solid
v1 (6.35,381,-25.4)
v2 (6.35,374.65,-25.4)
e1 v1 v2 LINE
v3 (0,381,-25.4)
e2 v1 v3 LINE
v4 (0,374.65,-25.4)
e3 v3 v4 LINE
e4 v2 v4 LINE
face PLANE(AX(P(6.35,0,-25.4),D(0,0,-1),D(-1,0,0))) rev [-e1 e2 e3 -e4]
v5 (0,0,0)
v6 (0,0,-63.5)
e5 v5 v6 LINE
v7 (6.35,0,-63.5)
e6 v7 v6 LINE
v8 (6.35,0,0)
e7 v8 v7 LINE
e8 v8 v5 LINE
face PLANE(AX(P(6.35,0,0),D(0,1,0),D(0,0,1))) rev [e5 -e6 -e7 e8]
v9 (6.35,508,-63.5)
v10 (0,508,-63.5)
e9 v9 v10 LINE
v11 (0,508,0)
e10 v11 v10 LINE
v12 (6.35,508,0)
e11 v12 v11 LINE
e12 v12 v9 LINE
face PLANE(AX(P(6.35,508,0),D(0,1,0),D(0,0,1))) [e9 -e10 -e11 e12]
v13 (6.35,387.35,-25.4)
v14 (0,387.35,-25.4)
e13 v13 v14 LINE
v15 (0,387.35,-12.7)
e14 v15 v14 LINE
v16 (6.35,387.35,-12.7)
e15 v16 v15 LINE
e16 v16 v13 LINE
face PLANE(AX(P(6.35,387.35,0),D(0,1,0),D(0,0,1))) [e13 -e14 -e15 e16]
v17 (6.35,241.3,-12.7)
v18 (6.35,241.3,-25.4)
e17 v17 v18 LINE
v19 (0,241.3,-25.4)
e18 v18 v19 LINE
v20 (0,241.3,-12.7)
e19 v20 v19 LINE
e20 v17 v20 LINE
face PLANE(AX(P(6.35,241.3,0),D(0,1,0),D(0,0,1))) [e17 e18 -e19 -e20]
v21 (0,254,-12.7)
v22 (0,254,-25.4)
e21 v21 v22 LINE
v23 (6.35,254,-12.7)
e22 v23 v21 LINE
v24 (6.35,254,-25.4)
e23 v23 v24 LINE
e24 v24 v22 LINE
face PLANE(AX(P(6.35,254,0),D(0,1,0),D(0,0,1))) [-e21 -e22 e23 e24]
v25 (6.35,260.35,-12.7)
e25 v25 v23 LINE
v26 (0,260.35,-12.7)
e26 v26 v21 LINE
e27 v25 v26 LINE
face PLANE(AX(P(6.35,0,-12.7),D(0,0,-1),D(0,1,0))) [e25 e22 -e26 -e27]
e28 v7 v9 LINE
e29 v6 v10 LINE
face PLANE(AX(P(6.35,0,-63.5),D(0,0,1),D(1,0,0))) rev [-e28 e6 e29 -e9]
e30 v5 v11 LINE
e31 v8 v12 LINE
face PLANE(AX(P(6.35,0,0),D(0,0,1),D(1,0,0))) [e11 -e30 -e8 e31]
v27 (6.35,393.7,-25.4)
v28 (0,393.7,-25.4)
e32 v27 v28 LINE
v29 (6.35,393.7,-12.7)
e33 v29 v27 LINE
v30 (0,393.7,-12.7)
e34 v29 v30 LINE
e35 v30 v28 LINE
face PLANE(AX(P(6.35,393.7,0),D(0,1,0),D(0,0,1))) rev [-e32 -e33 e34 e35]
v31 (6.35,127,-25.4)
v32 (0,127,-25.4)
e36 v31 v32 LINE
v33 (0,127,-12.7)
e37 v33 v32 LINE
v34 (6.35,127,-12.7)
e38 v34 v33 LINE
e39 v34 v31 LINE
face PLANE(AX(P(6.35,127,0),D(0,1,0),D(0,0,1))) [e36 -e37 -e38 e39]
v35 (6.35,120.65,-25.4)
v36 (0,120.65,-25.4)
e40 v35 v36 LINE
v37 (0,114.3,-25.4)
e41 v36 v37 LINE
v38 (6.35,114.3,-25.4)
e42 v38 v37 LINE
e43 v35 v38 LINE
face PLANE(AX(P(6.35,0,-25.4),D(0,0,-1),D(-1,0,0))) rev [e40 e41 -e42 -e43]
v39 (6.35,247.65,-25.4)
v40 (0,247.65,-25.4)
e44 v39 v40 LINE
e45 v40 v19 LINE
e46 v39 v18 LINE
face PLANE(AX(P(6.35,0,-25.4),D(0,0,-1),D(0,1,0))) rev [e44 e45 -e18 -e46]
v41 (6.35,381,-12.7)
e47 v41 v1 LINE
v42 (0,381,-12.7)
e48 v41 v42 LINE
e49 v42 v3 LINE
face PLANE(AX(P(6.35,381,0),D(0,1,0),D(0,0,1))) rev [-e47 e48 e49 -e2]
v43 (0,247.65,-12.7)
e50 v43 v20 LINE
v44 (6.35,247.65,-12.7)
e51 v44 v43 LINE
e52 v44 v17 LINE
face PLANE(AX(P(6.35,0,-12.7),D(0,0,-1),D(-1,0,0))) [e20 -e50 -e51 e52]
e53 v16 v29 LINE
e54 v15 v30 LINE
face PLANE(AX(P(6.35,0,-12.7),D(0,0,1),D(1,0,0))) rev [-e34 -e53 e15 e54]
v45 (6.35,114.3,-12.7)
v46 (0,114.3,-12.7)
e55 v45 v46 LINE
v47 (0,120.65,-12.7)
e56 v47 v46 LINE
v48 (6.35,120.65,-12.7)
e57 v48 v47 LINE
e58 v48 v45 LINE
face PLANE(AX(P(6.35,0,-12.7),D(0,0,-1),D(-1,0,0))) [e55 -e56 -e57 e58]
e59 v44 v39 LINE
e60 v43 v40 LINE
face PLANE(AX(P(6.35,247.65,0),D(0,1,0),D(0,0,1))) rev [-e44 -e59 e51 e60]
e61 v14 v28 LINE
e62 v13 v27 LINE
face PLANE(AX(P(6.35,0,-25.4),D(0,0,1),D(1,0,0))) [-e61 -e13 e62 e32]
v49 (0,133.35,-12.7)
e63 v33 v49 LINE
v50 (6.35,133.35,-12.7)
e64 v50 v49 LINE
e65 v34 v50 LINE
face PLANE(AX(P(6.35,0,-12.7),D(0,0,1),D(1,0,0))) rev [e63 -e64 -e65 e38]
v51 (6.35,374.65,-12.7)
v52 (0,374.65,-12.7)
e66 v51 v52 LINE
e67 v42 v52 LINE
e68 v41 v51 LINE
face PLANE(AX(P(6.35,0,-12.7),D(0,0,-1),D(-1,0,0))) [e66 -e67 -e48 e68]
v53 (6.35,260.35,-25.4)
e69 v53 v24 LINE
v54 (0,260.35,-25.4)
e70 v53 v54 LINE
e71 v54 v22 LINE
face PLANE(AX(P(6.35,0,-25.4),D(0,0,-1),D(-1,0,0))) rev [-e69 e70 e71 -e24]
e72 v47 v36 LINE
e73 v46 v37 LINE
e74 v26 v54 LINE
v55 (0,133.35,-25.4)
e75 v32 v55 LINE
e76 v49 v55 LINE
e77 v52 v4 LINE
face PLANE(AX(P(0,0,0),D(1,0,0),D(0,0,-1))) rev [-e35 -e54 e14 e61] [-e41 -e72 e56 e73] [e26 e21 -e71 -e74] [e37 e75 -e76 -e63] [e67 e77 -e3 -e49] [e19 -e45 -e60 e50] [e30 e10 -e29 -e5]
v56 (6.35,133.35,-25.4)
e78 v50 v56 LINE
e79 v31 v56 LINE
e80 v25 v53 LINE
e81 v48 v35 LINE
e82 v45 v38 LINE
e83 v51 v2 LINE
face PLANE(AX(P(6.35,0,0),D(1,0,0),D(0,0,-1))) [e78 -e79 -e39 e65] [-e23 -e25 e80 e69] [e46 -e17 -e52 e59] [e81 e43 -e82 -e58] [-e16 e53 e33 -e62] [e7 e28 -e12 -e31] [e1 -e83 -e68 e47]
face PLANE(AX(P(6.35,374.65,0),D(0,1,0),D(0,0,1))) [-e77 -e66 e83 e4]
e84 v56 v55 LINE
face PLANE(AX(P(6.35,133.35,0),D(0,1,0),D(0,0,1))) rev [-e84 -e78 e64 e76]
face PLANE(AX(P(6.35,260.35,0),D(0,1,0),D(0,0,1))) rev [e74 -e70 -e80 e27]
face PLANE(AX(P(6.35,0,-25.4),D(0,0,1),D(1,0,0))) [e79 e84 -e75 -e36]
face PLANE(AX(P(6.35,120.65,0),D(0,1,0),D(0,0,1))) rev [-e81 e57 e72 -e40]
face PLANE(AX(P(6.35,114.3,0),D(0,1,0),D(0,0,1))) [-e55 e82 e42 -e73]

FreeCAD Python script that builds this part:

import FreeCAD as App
import Part
import Sketcher
from FreeCAD import Vector
Q = App.Units.Quantity

doc = App.newDocument("Part")
params = doc.addObject("Spreadsheet::Sheet", "Params")
for row, (alias, value) in enumerate([
    ("sketch1_width", "20 in"),
    ("sketch1_height", "2.5 in"),
    ("sketch1_height2", "0.5 in"),
    ("sketch1_width2", "0.25 in"),
    ("pad1_length", "0.25 in"),
], start=1):
    params.set(f"A{row}", alias)
    params.set(f"B{row}", "=" + value)
    params.setAlias(f"B{row}", alias)

body = doc.addObject("PartDesign::Body", "Body")

# Sketch on YZ plane
sketch1 = body.newObject("Sketcher::SketchObject", "Sketch")
sketch1.AttachmentSupport = (doc.getObject("YZ_Plane"), [""])
sketch1.MapMode = "FlatFace"
sketch1.addGeometry(Part.LineSegment(Vector(508, 0, 0), Vector(0, 0, 0)), False)
sketch1.addGeometry(Part.LineSegment(Vector(0, 0, 0), Vector(0, -64, 0)), False)
sketch1.addGeometry(Part.LineSegment(Vector(0, -64, 0), Vector(508, -64, 0)), False)
sketch1.addGeometry(Part.LineSegment(Vector(508, -64, 0), Vector(508, 0, 0)), False)
sketch1.addGeometry(Part.LineSegment(Vector(114, -25, 0), Vector(114, -13, 0)), False)
sketch1.addGeometry(Part.LineSegment(Vector(114, -13, 0), Vector(121, -13, 0)), False)
sketch1.addGeometry(Part.LineSegment(Vector(121, -13, 0), Vector(121, -25, 0)), False)
sketch1.addGeometry(Part.LineSegment(Vector(121, -25, 0), Vector(114, -25, 0)), False)
sketch1.addGeometry(Part.LineSegment(Vector(127, -25, 0), Vector(127, -13, 0)), False)
sketch1.addGeometry(Part.LineSegment(Vector(127, -13, 0), Vector(133, -13, 0)), False)
sketch1.addGeometry(Part.LineSegment(Vector(133, -13, 0), Vector(133, -25, 0)), False)
sketch1.addGeometry(Part.LineSegment(Vector(133, -25, 0), Vector(127, -25, 0)), False)
sketch1.addGeometry(Part.LineSegment(Vector(241, -25, 0), Vector(241, -13, 0)), False)
sketch1.addGeometry(Part.LineSegment(Vector(241, -13, 0), Vector(248, -13, 0)), False)
sketch1.addGeometry(Part.LineSegment(Vector(248, -13, 0), Vector(248, -25, 0)), False)
sketch1.addGeometry(Part.LineSegment(Vector(248, -25, 0), Vector(241, -25, 0)), False)
sketch1.addGeometry(Part.LineSegment(Vector(254, -25, 0), Vector(254, -13, 0)), False)
sketch1.addGeometry(Part.LineSegment(Vector(254, -13, 0), Vector(260, -13, 0)), False)
sketch1.addGeometry(Part.LineSegment(Vector(260, -13, 0), Vector(260, -25, 0)), False)
sketch1.addGeometry(Part.LineSegment(Vector(260, -25, 0), Vector(254, -25, 0)), False)
sketch1.addGeometry(Part.LineSegment(Vector(375, -25, 0), Vector(375, -13, 0)), False)
sketch1.addGeometry(Part.LineSegment(Vector(375, -13, 0), Vector(381, -13, 0)), False)
sketch1.addGeometry(Part.LineSegment(Vector(381, -13, 0), Vector(381, -25, 0)), False)
sketch1.addGeometry(Part.LineSegment(Vector(381, -25, 0), Vector(375, -25, 0)), False)
sketch1.addGeometry(Part.LineSegment(Vector(387, -25, 0), Vector(387, -13, 0)), False)
sketch1.addGeometry(Part.LineSegment(Vector(387, -13, 0), Vector(394, -13, 0)), False)
sketch1.addGeometry(Part.LineSegment(Vector(394, -13, 0), Vector(394, -25, 0)), False)
sketch1.addGeometry(Part.LineSegment(Vector(394, -25, 0), Vector(387, -25, 0)), False)
sketch1.addConstraint(Sketcher.Constraint("Coincident", 0, 2, 1, 1))
sketch1.addConstraint(Sketcher.Constraint("Coincident", 1, 2, 2, 1))
sketch1.addConstraint(Sketcher.Constraint("Coincident", 2, 2, 3, 1))
sketch1.addConstraint(Sketcher.Constraint("Coincident", 3, 2, 0, 1))
sketch1.addConstraint(Sketcher.Constraint("Coincident", 4, 2, 5, 1))
sketch1.addConstraint(Sketcher.Constraint("Coincident", 5, 2, 6, 1))
sketch1.addConstraint(Sketcher.Constraint("Coincident", 6, 2, 7, 1))
sketch1.addConstraint(Sketcher.Constraint("Coincident", 7, 2, 4, 1))
sketch1.addConstraint(Sketcher.Constraint("Coincident", 8, 2, 9, 1))
sketch1.addConstraint(Sketcher.Constraint("Coincident", 9, 2, 10, 1))
sketch1.addConstraint(Sketcher.Constraint("Coincident", 10, 2, 11, 1))
sketch1.addConstraint(Sketcher.Constraint("Coincident", 11, 2, 8, 1))
sketch1.addConstraint(Sketcher.Constraint("Coincident", 12, 2, 13, 1))
sketch1.addConstraint(Sketcher.Constraint("Coincident", 13, 2, 14, 1))
sketch1.addConstraint(Sketcher.Constraint("Coincident", 14, 2, 15, 1))
sketch1.addConstraint(Sketcher.Constraint("Coincident", 15, 2, 12, 1))
sketch1.addConstraint(Sketcher.Constraint("Coincident", 16, 2, 17, 1))
sketch1.addConstraint(Sketcher.Constraint("Coincident", 17, 2, 18, 1))
sketch1.addConstraint(Sketcher.Constraint("Coincident", 18, 2, 19, 1))
sketch1.addConstraint(Sketcher.Constraint("Coincident", 19, 2, 16, 1))
sketch1.addConstraint(Sketcher.Constraint("Coincident", 20, 2, 21, 1))
sketch1.addConstraint(Sketcher.Constraint("Coincident", 21, 2, 22, 1))
sketch1.addConstraint(Sketcher.Constraint("Coincident", 22, 2, 23, 1))
sketch1.addConstraint(Sketcher.Constraint("Coincident", 23, 2, 20, 1))
sketch1.addConstraint(Sketcher.Constraint("Coincident", 24, 2, 25, 1))
sketch1.addConstraint(Sketcher.Constraint("Coincident", 25, 2, 26, 1))
sketch1.addConstraint(Sketcher.Constraint("Coincident", 26, 2, 27, 1))
sketch1.addConstraint(Sketcher.Constraint("Coincident", 27, 2, 24, 1))
sketch1.addConstraint(Sketcher.Constraint("Horizontal", 0))
sketch1.addConstraint(Sketcher.Constraint("Vertical", 1))
sketch1.addConstraint(Sketcher.Constraint("Horizontal", 2))
sketch1.addConstraint(Sketcher.Constraint("Vertical", 3))
sketch1.addConstraint(Sketcher.Constraint("Vertical", 4))
sketch1.addConstraint(Sketcher.Constraint("Horizontal", 5))
sketch1.addConstraint(Sketcher.Constraint("Vertical", 6))
sketch1.addConstraint(Sketcher.Constraint("Horizontal", 7))
sketch1.addConstraint(Sketcher.Constraint("Vertical", 8))
sketch1.addConstraint(Sketcher.Constraint("Horizontal", 9))
sketch1.addConstraint(Sketcher.Constraint("Vertical", 10))
sketch1.addConstraint(Sketcher.Constraint("Horizontal", 11))
sketch1.addConstraint(Sketcher.Constraint("Vertical", 12))
sketch1.addConstraint(Sketcher.Constraint("Horizontal", 13))
sketch1.addConstraint(Sketcher.Constraint("Vertical", 14))
sketch1.addConstraint(Sketcher.Constraint("Horizontal", 15))
sketch1.addConstraint(Sketcher.Constraint("Vertical", 16))
sketch1.addConstraint(Sketcher.Constraint("Horizontal", 17))
sketch1.addConstraint(Sketcher.Constraint("Vertical", 18))
sketch1.addConstraint(Sketcher.Constraint("Horizontal", 19))
sketch1.addConstraint(Sketcher.Constraint("Vertical", 20))
sketch1.addConstraint(Sketcher.Constraint("Horizontal", 21))
sketch1.addConstraint(Sketcher.Constraint("Vertical", 22))
sketch1.addConstraint(Sketcher.Constraint("Horizontal", 23))
sketch1.addConstraint(Sketcher.Constraint("Vertical", 24))
sketch1.addConstraint(Sketcher.Constraint("Horizontal", 25))
sketch1.addConstraint(Sketcher.Constraint("Vertical", 26))
sketch1.addConstraint(Sketcher.Constraint("Horizontal", 27))
sketch1.addConstraint(Sketcher.Constraint("Coincident", 0, 2, -1, 1))
sketch1.addConstraint(Sketcher.Constraint("Horizontal", 5, 2, 8, 2))
sketch1.addConstraint(Sketcher.Constraint("Horizontal", 7, 2, 10, 2))
sketch1.addConstraint(Sketcher.Constraint("Horizontal", 9, 2, 12, 2))
sketch1.addConstraint(Sketcher.Constraint("Horizontal", 11, 2, 14, 2))
sketch1.addConstraint(Sketcher.Constraint("Horizontal", 13, 2, 16, 2))
sketch1.addConstraint(Sketcher.Constraint("Horizontal", 15, 2, 18, 2))
sketch1.addConstraint(Sketcher.Constraint("Horizontal", 17, 2, 20, 2))
sketch1.addConstraint(Sketcher.Constraint("Horizontal", 19, 2, 22, 2))
sketch1.addConstraint(Sketcher.Constraint("Horizontal", 21, 2, 24, 2))
sketch1.addConstraint(Sketcher.Constraint("Horizontal", 23, 2, 26, 2))
sketch1.addConstraint(Sketcher.Constraint("Equal", 7, 9))
sketch1.addConstraint(Sketcher.Constraint("Equal", 11, 13))
sketch1.addConstraint(Sketcher.Constraint("Equal", 15, 17))
sketch1.addConstraint(Sketcher.Constraint("Equal", 19, 21))
sketch1.addConstraint(Sketcher.Constraint("Equal", 23, 25))
sketch1.addConstraint(Sketcher.Constraint("DistanceX", 0, 2, 0, 1, Q("20 in")))
sketch1.addConstraint(Sketcher.Constraint("DistanceY", 1, 2, 1, 1, Q("2.5 in")))
sketch1.addConstraint(Sketcher.Constraint("DistanceY", 4, 1, 4, 2, Q("0.5 in")))
sketch1.addConstraint(Sketcher.Constraint("DistanceY", 6, 2, -1, 1, Q("1 in")))
sketch1.addConstraint(Sketcher.Constraint("DistanceX", -1, 1, 8, 2, Q("5 in")))
sketch1.addConstraint(Sketcher.Constraint("DistanceX", -1, 1, 16, 2, Q("10 in")))
sketch1.addConstraint(Sketcher.Constraint("DistanceX", -1, 1, 21, 2, Q("15 in")))
sketch1.addConstraint(Sketcher.Constraint("DistanceX", 13, 2, 20, 2, Q("5 in")))
sketch1.addConstraint(Sketcher.Constraint("DistanceX", 5, 1, 5, 2, Q("0.25 in")))
sketch1.addConstraint(Sketcher.Constraint("DistanceX", -1, 1, 4, 2, Q("4.5 in")))
sketch1.addConstraint(Sketcher.Constraint("DistanceX", -1, 1, 25, 2, Q("15.5 in")))
sketch1.setExpression("Constraints[72]", "Params.sketch1_width")
sketch1.setExpression("Constraints[73]", "Params.sketch1_height")
sketch1.setExpression("Constraints[74]", "Params.sketch1_height2")
sketch1.setExpression("Constraints[80]", "Params.sketch1_width2")
pad1 = body.newObject("PartDesign::Pad", "Pad")
pad1.Profile = sketch1
pad1.setExpression("Length", "Params.pad1_length")

doc.recompute()
